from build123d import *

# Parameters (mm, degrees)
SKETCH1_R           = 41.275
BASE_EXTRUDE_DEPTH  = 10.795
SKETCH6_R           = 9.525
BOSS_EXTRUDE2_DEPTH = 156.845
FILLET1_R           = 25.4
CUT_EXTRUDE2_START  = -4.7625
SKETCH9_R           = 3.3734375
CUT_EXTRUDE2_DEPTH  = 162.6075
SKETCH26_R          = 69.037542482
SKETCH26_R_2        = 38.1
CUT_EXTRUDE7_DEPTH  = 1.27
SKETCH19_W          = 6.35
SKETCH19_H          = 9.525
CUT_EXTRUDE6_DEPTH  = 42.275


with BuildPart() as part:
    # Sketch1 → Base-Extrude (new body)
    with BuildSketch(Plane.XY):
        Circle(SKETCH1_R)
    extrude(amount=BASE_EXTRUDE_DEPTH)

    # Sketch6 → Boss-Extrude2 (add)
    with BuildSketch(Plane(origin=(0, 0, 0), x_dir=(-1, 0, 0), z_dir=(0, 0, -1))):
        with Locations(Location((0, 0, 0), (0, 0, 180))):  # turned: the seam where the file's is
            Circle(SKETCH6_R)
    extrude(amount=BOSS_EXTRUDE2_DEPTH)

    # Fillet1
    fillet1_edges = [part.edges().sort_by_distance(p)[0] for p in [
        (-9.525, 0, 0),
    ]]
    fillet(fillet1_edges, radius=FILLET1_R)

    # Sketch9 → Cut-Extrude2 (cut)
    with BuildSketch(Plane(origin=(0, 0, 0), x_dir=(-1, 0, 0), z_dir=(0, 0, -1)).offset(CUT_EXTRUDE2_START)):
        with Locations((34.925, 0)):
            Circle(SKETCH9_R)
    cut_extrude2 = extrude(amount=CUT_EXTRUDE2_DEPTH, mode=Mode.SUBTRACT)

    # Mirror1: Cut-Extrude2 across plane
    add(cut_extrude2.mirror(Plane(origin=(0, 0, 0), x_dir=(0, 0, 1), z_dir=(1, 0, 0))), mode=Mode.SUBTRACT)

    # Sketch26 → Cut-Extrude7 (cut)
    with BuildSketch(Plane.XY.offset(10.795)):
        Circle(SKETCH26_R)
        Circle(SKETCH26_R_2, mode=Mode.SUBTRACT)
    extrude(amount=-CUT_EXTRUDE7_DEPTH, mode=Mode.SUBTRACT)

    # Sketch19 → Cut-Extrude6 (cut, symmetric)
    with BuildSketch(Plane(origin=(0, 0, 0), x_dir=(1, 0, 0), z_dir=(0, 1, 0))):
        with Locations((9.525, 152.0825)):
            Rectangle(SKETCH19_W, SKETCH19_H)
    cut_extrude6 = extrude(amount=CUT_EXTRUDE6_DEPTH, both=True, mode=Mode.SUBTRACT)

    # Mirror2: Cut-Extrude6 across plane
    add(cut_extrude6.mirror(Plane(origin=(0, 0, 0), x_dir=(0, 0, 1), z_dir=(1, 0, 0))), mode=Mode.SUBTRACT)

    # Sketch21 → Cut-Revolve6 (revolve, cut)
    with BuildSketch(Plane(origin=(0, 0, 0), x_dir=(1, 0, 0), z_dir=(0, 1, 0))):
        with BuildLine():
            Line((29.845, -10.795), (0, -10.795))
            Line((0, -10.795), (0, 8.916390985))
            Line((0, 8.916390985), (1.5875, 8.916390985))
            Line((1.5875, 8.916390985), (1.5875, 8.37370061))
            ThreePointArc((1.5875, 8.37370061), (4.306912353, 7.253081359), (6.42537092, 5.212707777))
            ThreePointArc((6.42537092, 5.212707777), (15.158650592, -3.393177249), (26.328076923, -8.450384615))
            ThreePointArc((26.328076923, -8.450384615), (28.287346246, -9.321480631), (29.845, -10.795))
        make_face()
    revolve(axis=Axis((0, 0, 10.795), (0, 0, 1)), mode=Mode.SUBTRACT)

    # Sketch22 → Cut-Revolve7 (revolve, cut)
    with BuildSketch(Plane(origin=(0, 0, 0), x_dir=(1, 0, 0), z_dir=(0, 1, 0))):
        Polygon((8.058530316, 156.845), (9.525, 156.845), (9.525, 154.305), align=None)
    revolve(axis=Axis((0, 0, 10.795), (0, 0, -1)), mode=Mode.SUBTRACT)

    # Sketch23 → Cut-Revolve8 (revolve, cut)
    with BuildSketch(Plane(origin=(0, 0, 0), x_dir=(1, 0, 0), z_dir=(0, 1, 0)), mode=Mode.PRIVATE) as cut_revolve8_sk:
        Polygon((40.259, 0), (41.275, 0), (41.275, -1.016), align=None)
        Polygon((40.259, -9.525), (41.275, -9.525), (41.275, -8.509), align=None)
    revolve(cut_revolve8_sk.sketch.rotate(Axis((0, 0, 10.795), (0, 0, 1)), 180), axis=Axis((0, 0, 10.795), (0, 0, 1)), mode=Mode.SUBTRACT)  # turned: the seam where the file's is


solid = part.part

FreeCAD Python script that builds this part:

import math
import FreeCAD as App
import Part
import Sketcher

V = App.Vector
Q = App.Units.Quantity


def edges_at(feature, points):
    """Names of the edges that pass closest to the given points."""
    edges = feature.Shape.Edges
    near = lambda p: min(range(len(edges)), key=lambda i: edges[i].distToShape(Part.Vertex(*p))[0])
    return sorted({f"Edge{near(p) + 1}" for p in points})

doc = App.newDocument("Part")
body = doc.addObject("PartDesign::Body", "Body")

sketch1 = doc.addObject("Sketcher::SketchObject", "Sketch")
body.addObject(sketch1)
sketch1.AttachmentSupport = (doc.XY_Plane, [""])
sketch1.MapMode = "FlatFace"
sketch1.addGeometry(Part.Circle(V(0, 0, 0), V(0, 0, 1), 41), False)
sketch1.addConstraint([
    Sketcher.Constraint("Coincident", 0, 3, -1, 1),
    Sketcher.Constraint("Diameter", 0, Q("3.25 in")),
])
pad1 = doc.addObject("PartDesign::Pad", "Pad")
body.addObject(pad1)
pad1.Profile = sketch1
pad1.Length = Q("0.425 in")

sketch2 = doc.addObject("Sketcher::SketchObject", "Sketch001")
body.addObject(sketch2)
sketch2.AttachmentSupport = (doc.XY_Plane, [""])
sketch2.MapMode = "FlatFace"
sketch2.addGeometry(Part.Circle(V(0, 0, 0), V(0, 0, 1), 10), False)
sketch2.addConstraint([
    Sketcher.Constraint("Coincident", 0, 3, -1, 1),
    Sketcher.Constraint("Diameter", 0, Q("0.75 in")),
])
pad2 = doc.addObject("PartDesign::Pad", "Pad001")
body.addObject(pad2)
pad2.Profile = sketch2
pad2.Length = Q("6.175 in")
pad2.Reversed = True
doc.recompute()

fillet = doc.addObject("PartDesign::Fillet", "Fillet")
body.addObject(fillet)
fillet.Base = (pad2, edges_at(pad2, [(-9.525, 0, 0)]))
fillet.Radius = Q("1 in")

sketch3 = doc.addObject("Sketcher::SketchObject", "Sketch002")
body.addObject(sketch3)
sketch3.AttachmentSupport = (doc.XY_Plane, [""])
sketch3.MapMode = "FlatFace"
sketch3.AttachmentOffset = App.Placement(V(0, 0, 0.1875 * 25.4), App.Rotation())
sketch3.addGeometry(Part.Circle(V(-34.9, 0, 0), V(0, 0, 1), 3.4), False)
sketch3.addConstraint([
    Sketcher.Constraint("PointOnObject", 0, 3, -1),
    Sketcher.Constraint("Diameter", 0, Q("0.265625 in")),
    Sketcher.Constraint("DistanceX", 0, 3, -1, 1, Q("1.375 in")),
])
pocket1 = doc.addObject("PartDesign::Pocket", "Pocket")
body.addObject(pocket1)
pocket1.Profile = sketch3
pocket1.Length = 162.6075
doc.recompute()

mirrored = doc.addObject("PartDesign::Mirrored", "Mirrored")
body.addObject(mirrored)
mirrored.Originals = [pocket1]
mirrored.MirrorPlane = (doc.YZ_Plane, [""])
body.Tip = mirrored

sketch4 = doc.addObject("Sketcher::SketchObject", "Sketch003")
body.addObject(sketch4)
sketch4.AttachmentSupport = (doc.XY_Plane, [""])
sketch4.MapMode = "FlatFace"
sketch4.AttachmentOffset = App.Placement(V(0, 0, 0.425 * 25.4), App.Rotation())
sketch4.addGeometry([
    Part.Circle(V(0, 0, 0), V(0, 0, 1), 69),
    Part.Circle(V(0, 0, 0), V(0, 0, 1), 38),
], False)
sketch4.addConstraint([
    Sketcher.Constraint("Coincident", 0, 3, -1, 1),
    Sketcher.Constraint("Coincident", 1, 3, -1, 1),
    Sketcher.Constraint("Diameter", 1, Q("3 in")),
    Sketcher.Constraint("Diameter", 0, 138.075085),
])
pocket2 = doc.addObject("PartDesign::Pocket", "Pocket001")
body.addObject(pocket2)
pocket2.Profile = sketch4
pocket2.Length = Q("0.05 in")

sketch5 = doc.addObject("Sketcher::SketchObject", "Sketch004")
body.addObject(sketch5)
sketch5.AttachmentSupport = (doc.XZ_Plane, [""])
sketch5.MapMode = "FlatFace"
sketch5.addGeometry([
    Part.LineSegment(V(6, -157, 0), V(6, -147, 0)),
    Part.LineSegment(V(6, -147, 0), V(13, -147, 0)),
    Part.LineSegment(V(13, -147, 0), V(13, -157, 0)),
    Part.LineSegment(V(13, -157, 0), V(6, -157, 0)),
], False)
sketch5.addConstraint([
    Sketcher.Constraint("Coincident", 0, 2, 1, 1),
    Sketcher.Constraint("Coincident", 1, 2, 2, 1),
    Sketcher.Constraint("Coincident", 2, 2, 3, 1),
    Sketcher.Constraint("Coincident", 3, 2, 0, 1),
    Sketcher.Constraint("Vertical", 0),
    Sketcher.Constraint("Horizontal", 1),
    Sketcher.Constraint("Vertical", 2),
    Sketcher.Constraint("Horizontal", 3),
    Sketcher.Constraint("DistanceX", 1, 1, 1, 2, Q("0.25 in")),
    Sketcher.Constraint("DistanceY", 0, 2, -1, 1, Q("5.8 in")),
    Sketcher.Constraint("DistanceX", -1, 1, 1, 2, Q("0.5 in")),
    Sketcher.Constraint("DistanceY", 0, 1, 0, 2, Q("0.375 in")),
])
pocket3 = doc.addObject("PartDesign::Pocket", "Pocket002")
body.addObject(pocket3)
pocket3.Profile = sketch5
pocket3.Length = 84.55
pocket3.Midplane = True
doc.recompute()

mirrored2 = doc.addObject("PartDesign::Mirrored", "Mirrored001")
body.addObject(mirrored2)
mirrored2.Originals = [pocket3]
mirrored2.MirrorPlane = (doc.YZ_Plane, [""])
body.Tip = mirrored2

sketch6 = doc.addObject("Sketcher::SketchObject", "Sketch005")
body.addObject(sketch6)
sketch6.AttachmentSupport = (doc.XZ_Plane, [""])
sketch6.MapMode = "FlatFace"
sketch6.addGeometry([
    Part.LineSegment(V(0, 10.8, 0), V(29.8, 10.8, 0)),
    Part.ArcOfCircle(Part.Circle(V(24.8, 14.6, 0), V(0, 0, 1), 6.4), math.radians(-76), math.radians(-37)),
    Part.ArcOfCircle(Part.Circle(V(34.9, -25.4, 0), V(0, 0, 1), 34.9), math.radians(104), math.radians(145)),
    Part.ArcOfCircle(Part.Circle(V(0, -0.7, 0), V(0, 0, 1), 7.9), math.radians(-78), math.radians(-35)),
    Part.LineSegment(V(1.6, -8.4, 0), V(1.6, -8.9, 0)),
    Part.LineSegment(V(1.6, -8.9, 0), V(0, -8.9, 0)),
    Part.LineSegment(V(0, -8.9, 0), V(0, 10.8, 0)),
], False)
sketch6.addConstraint([
    Sketcher.Constraint("Coincident", 0, 2, 1, 2),
    Sketcher.Constraint("Tangent", 1, 1, 2, 1),
    Sketcher.Constraint("Tangent", 2, 2, 3, 2),
    Sketcher.Constraint("Coincident", 3, 1, 4, 1),
    Sketcher.Constraint("Coincident", 4, 2, 5, 1),
    Sketcher.Constraint("Coincident", 5, 2, 6, 1),
    Sketcher.Constraint("Coincident", 6, 2, 0, 1),
    Sketcher.Constraint("Horizontal", 0),
    Sketcher.Constraint("Vertical", 4),
    Sketcher.Constraint("Horizontal", 5),
    Sketcher.Constraint("Vertical", 6),
    Sketcher.Constraint("PointOnObject", 3, 3, -2),
    Sketcher.Constraint("PointOnObject", 5, 2, -2),
    Sketcher.Constraint("Radius", 1, Q("0.25 in")),
    Sketcher.Constraint("Radius", 3, Q("0.31 in")),
    Sketcher.Constraint("DistanceY", 2, 3, -1, 1, Q("1 in")),
    Sketcher.Constraint("Radius", 2, Q("1.375 in")),
    Sketcher.Constraint("DistanceX", 1, 3, 2, 3, Q("0.4 in")),
    Sketcher.Constraint("DistanceX", 1, 3, 0, 2, Q("0.2 in")),
    Sketcher.Constraint("DistanceX", 0, 1, 0, 2, Q("1.175 in")),
    Sketcher.Constraint("DistanceX", 5, 2, 5, 1, Q("0.0625 in")),
    Sketcher.Constraint("DistanceY", 4, 2, 3, 3, Q("0.325 in")),
])
groove = doc.addObject("PartDesign::Groove", "Groove")
body.addObject(groove)
groove.Profile = sketch6
groove.ReferenceAxis = (sketch6, ["V_Axis"])
groove.Angle = 360

sketch7 = doc.addObject("Sketcher::SketchObject", "Sketch006")
body.addObject(sketch7)
sketch7.AttachmentSupport = (doc.XZ_Plane, [""])
sketch7.MapMode = "FlatFace"
sketch7.addGeometry([
    Part.LineSegment(V(9.5, -156.8, 0), V(8.1, -156.8, 0)),
    Part.LineSegment(V(8.1, -156.8, 0), V(9.5, -154.3, 0)),
    Part.LineSegment(V(9.5, -154.3, 0), V(9.5, -156.8, 0)),
], False)
sketch7.addConstraint([
    Sketcher.Constraint("Coincident", 0, 2, 1, 1),
    Sketcher.Constraint("Coincident", 1, 2, 2, 1),
    Sketcher.Constraint("Coincident", 2, 2, 0, 1),
    Sketcher.Constraint("Horizontal", 0),
    Sketcher.Constraint("Vertical", 2),
    Sketcher.Constraint("DistanceY", 2, 2, 2, 1, Q("0.1 in")),
    Sketcher.Constraint("Angle", 1, Q("60 deg")),
    Sketcher.Constraint("DistanceY", 0, 2, -1, 1, Q("6.175 in")),
    Sketcher.Constraint("DistanceX", -1, 1, 1, 2, Q("0.375 in")),
])
groove2 = doc.addObject("PartDesign::Groove", "Groove001")
body.addObject(groove2)
groove2.Profile = sketch7
groove2.ReferenceAxis = (sketch7, ["V_Axis"])
groove2.Angle = 360

sketch8 = doc.addObject("Sketcher::SketchObject", "Sketch007")
body.addObject(sketch8)
sketch8.AttachmentSupport = (doc.XZ_Plane, [""])
sketch8.MapMode = "FlatFace"
sketch8.addGeometry([
    Part.LineSegment(V(41.3, 0, 0), V(40.3, 0, 0)),
    Part.LineSegment(V(40.3, 0, 0), V(41.3, 1, 0)),
    Part.LineSegment(V(41.3, 1, 0), V(41.3, 0, 0)),
    Part.LineSegment(V(40.3, 9.5, 0), V(41.3, 9.5, 0)),
    Part.LineSegment(V(41.3, 9.5, 0), V(41.3, 8.5, 0)),
    Part.LineSegment(V(41.3, 8.5, 0), V(40.3, 9.5, 0)),
], False)
sketch8.addConstraint([
    Sketcher.Constraint("Coincident", 0, 2, 1, 1),
    Sketcher.Constraint("Coincident", 1, 2, 2, 1),
    Sketcher.Constraint("Coincident", 2, 2, 0, 1),
    Sketcher.Constraint("Coincident", 3, 2, 4, 1),
    Sketcher.Constraint("Coincident", 4, 2, 5, 1),
    Sketcher.Constraint("Coincident", 5, 2, 3, 1),
    Sketcher.Constraint("Horizontal", 0),
    Sketcher.Constraint("Vertical", 2),
    Sketcher.Constraint("Horizontal", 3),
    Sketcher.Constraint("Vertical", 4),
    Sketcher.Constraint("PointOnObject", 0, 2, -1),
    Sketcher.Constraint("Perpendicular", 1, 5),
    Sketcher.Constraint("Vertical", 2, 2, 3, 2),
    Sketcher.Constraint("Vertical", 0, 2, 5, 2),
    Sketcher.Constraint("Equal", 3, 2),
    Sketcher.Constraint("DistanceX", 0, 2, 0, 1, Q("0.04 in")),
    Sketcher.Constraint("DistanceX", -1, 1, 0, 2, Q("1.585 in")),
    Sketcher.Constraint("DistanceY", -1, 1, 3, 2, Q("0.375 in")),
])
groove3 = doc.addObject("PartDesign::Groove", "Groove002")
body.addObject(groove3)
groove3.Profile = sketch8
groove3.ReferenceAxis = (sketch8, ["V_Axis"])
groove3.Angle = 360

doc.recompute()
